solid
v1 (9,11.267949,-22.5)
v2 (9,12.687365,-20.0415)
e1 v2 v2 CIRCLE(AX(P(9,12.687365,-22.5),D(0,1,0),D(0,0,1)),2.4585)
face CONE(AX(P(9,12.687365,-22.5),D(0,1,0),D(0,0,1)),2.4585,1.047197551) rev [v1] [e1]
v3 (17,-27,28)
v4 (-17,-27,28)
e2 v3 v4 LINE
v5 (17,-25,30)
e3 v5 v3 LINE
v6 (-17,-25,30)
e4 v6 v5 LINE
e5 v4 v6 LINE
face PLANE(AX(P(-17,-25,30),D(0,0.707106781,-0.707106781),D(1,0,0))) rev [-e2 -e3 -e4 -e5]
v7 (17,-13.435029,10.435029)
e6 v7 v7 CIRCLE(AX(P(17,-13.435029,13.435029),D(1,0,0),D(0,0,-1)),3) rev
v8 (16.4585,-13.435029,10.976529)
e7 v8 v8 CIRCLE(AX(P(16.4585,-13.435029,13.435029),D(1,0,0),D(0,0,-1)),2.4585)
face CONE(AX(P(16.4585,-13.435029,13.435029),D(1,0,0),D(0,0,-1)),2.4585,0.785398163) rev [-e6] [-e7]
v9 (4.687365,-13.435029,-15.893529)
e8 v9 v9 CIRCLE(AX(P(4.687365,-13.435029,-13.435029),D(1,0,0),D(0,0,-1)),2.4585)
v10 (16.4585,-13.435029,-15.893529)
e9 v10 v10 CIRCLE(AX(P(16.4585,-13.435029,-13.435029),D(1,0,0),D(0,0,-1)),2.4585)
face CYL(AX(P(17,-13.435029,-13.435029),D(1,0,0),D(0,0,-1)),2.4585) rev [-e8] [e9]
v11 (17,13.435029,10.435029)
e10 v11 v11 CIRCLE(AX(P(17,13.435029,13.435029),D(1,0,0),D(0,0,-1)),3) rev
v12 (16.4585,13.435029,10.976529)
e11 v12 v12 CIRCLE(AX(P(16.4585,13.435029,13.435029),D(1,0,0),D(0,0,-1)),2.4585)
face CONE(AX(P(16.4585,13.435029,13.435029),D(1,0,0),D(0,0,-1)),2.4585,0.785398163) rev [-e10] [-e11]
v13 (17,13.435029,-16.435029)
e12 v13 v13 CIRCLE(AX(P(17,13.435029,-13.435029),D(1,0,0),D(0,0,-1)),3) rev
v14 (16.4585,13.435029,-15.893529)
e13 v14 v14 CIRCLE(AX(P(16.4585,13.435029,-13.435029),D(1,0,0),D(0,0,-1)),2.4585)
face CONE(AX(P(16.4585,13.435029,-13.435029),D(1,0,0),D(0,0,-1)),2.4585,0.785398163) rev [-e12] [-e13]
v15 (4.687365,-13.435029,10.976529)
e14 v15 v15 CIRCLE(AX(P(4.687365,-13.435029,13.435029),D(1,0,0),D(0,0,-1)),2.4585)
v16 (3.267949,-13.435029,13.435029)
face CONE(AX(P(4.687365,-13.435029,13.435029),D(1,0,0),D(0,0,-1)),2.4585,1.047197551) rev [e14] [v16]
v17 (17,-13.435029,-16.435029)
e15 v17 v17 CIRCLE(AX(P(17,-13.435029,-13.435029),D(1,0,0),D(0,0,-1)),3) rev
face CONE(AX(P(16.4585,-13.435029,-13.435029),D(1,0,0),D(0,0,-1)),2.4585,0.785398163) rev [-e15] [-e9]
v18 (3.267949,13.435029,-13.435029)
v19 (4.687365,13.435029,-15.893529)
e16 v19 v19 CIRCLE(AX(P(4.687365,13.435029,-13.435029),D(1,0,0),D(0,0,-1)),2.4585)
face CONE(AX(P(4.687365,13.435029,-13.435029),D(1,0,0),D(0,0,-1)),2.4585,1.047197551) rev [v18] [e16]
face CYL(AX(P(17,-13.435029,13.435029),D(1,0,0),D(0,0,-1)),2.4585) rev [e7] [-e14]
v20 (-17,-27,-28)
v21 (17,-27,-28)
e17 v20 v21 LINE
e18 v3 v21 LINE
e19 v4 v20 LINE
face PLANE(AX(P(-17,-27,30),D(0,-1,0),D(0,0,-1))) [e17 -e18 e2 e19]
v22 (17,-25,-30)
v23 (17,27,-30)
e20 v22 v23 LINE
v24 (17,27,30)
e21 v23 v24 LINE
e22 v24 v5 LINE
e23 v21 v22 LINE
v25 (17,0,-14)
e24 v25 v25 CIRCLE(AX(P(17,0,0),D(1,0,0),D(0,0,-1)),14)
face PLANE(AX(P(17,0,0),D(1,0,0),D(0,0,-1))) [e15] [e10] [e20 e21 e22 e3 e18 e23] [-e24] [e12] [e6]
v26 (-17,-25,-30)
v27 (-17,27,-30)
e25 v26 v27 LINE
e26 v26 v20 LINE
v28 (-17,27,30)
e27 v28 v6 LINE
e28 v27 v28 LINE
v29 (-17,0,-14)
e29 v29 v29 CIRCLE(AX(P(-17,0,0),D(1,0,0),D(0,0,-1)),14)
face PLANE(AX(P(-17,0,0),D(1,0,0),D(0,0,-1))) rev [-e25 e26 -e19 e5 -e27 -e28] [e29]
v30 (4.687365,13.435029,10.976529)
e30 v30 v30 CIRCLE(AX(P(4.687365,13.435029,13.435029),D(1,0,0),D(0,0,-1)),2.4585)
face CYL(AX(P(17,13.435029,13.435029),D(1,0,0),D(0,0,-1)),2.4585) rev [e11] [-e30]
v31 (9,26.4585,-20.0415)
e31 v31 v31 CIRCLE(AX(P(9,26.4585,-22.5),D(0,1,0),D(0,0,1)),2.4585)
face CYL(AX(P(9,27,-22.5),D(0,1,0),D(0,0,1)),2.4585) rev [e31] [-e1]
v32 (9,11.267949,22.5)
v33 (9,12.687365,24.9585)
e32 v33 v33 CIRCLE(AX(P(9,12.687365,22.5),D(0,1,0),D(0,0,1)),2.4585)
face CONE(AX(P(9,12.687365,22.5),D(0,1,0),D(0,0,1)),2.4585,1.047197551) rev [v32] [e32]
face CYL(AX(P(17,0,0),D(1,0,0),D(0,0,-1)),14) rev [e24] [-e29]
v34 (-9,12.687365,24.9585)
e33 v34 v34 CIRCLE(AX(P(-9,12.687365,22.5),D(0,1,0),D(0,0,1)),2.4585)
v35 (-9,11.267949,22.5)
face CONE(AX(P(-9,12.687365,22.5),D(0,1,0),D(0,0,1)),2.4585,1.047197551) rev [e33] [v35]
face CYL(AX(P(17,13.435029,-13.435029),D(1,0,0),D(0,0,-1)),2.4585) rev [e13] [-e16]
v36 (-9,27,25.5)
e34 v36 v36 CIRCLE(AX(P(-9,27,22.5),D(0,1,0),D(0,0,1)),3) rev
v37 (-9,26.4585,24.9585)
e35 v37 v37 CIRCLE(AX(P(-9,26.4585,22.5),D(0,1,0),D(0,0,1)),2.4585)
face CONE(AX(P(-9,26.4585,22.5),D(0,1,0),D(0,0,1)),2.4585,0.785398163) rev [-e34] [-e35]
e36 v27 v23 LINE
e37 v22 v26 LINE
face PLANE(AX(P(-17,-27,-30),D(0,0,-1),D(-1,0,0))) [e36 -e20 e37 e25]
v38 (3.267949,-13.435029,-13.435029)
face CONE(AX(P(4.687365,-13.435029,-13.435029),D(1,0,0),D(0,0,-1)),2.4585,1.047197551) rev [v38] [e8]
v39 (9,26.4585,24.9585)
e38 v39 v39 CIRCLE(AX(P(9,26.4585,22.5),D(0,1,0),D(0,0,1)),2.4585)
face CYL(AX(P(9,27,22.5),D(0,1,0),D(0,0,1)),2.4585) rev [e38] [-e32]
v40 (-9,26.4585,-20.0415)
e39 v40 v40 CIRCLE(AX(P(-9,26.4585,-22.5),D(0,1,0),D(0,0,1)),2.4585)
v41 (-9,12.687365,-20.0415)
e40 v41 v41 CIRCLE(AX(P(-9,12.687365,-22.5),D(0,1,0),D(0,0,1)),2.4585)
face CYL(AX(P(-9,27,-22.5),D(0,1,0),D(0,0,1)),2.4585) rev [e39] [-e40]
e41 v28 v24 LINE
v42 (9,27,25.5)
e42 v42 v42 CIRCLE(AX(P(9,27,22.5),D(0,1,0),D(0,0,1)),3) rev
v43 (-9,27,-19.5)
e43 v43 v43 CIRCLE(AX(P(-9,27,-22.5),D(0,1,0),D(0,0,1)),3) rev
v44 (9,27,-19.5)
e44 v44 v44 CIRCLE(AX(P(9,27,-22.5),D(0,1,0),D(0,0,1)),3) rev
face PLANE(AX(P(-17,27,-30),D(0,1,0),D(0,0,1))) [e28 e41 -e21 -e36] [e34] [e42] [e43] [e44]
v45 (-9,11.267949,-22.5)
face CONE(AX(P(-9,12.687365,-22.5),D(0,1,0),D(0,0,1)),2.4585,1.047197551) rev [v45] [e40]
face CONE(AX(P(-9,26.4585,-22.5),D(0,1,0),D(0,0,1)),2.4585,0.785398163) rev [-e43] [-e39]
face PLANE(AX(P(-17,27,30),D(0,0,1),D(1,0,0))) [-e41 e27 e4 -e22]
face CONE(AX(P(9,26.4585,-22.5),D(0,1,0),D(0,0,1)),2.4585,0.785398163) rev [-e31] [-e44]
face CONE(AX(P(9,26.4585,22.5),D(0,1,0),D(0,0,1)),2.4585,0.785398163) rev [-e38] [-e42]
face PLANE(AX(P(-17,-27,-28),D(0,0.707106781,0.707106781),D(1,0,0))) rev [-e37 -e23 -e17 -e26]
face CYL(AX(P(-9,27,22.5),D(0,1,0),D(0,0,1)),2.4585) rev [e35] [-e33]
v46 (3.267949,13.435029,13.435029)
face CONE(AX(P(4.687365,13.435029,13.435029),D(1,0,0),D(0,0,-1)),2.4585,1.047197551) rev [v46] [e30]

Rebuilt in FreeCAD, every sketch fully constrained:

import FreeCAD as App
import Part
import Sketcher
from FreeCAD import Vector


def edges_at(feature, points):
    """Names of the edges that pass closest to the given points."""
    edges = feature.Shape.Edges
    near = lambda p: min(range(len(edges)), key=lambda i: edges[i].distToShape(Part.Vertex(*p))[0])
    return sorted({f"Edge{near(p) + 1}" for p in points})


def add_polygon(sketch, points):
    """Adds a closed chain of lines whose ends are joined by coincident constraints."""
    first, n = sketch.GeometryCount, len(points)
    for a, b in zip(points, points[1:] + points[:1]):
        sketch.addGeometry(Part.LineSegment(App.Vector(*a, 0), App.Vector(*b, 0)), False)
    for i in range(n):
        sketch.addConstraint(Sketcher.Constraint("Coincident", first + i, 2, first + (i + 1) % n, 1))

doc = App.newDocument("Part")
params = doc.addObject("Spreadsheet::Sheet", "Params")
for row, (alias, value) in enumerate([
    ("sketch1_width", "54 mm"),
    ("sketch1_height", "60 mm"),
    ("pad1_length", "34 mm"),
    ("sketch2_diameter", "28 mm"),
    ("hole_diameter", "28 mm"),
    ("hole2_diameter", "4.917 mm"),
    ("hole2_depth", "14.312635 mm"),
    ("hole3_diameter", "4.917 mm"),
    ("hole3_depth", "12.312635 mm"),
    ("chamfer_size", "0.5415 mm"),
    ("chamfer2_size", "2 mm"),
], start=1):
    params.set(f"A{row}", alias)
    params.set(f"B{row}", "=" + value)
    params.setAlias(f"B{row}", alias)

body = doc.addObject("PartDesign::Body", "Body")

sketch1 = doc.addObject("Sketcher::SketchObject", "Sketch")
body.addObject(sketch1)
sketch1.AttachmentSupport = (doc.YZ_Plane, [""])
sketch1.MapMode = "FlatFace"
sketch1.AttachmentOffset = App.Placement(Vector(0, 0, 17), App.Rotation())
add_polygon(sketch1, [(27, 30), (-27, 30), (-27, -30), (27, -30)])
sketch1.addConstraint(Sketcher.Constraint("Horizontal", 0))
sketch1.addConstraint(Sketcher.Constraint("Vertical", 1))
sketch1.addConstraint(Sketcher.Constraint("Horizontal", 2))
sketch1.addConstraint(Sketcher.Constraint("Vertical", 3))
sketch1.addConstraint(Sketcher.Constraint("Symmetric", 0, 2, 2, 2, -1, 1))
sketch1.addConstraint(Sketcher.Constraint("DistanceX", 0, 2, 0, 1, 54.0))
sketch1.addConstraint(Sketcher.Constraint("DistanceY", 1, 2, 1, 1, 60.0))
sketch1.setExpression("Constraints[9]", "Params.sketch1_width")
sketch1.setExpression("Constraints[10]", "Params.sketch1_height")
pad1 = doc.addObject("PartDesign::Pad", "Pad")
body.addObject(pad1)
pad1.Profile = sketch1
pad1.setExpression("Length", "Params.pad1_length")
pad1.Reversed = True

sketch2 = doc.addObject("Sketcher::SketchObject", "Sketch001")
body.addObject(sketch2)
sketch2.AttachmentSupport = (doc.YZ_Plane, [""])
sketch2.MapMode = "FlatFace"
sketch2.AttachmentOffset = App.Placement(Vector(0, 0, 17), App.Rotation())
sketch2.addGeometry(Part.Circle(Vector(0, 0, 0), Vector(0, 0, 1), 14), False)
sketch2.addConstraint(Sketcher.Constraint("Coincident", 0, 3, -1, 1))
sketch2.addConstraint(Sketcher.Constraint("Diameter", 0, 28.0))
sketch2.setExpression("Constraints[1]", "Params.sketch2_diameter")
doc.recompute()
hole = doc.addObject("PartDesign::Hole", "Hole")
body.addObject(hole)
hole.Profile = sketch2
hole.ThreadType = "None"
hole.setExpression("Diameter", "Params.hole_diameter")
hole.DepthType = "ThroughAll"

sketch3 = doc.addObject("Sketcher::SketchObject", "Sketch002")
body.addObject(sketch3)
sketch3.AttachmentSupport = (doc.XZ_Plane, [""])
sketch3.MapMode = "FlatFace"
sketch3.AttachmentOffset = App.Placement(Vector(0, 0, -27), App.Rotation())
sketch3.addGeometry(Part.Circle(Vector(9, -22.5, 0), Vector(0, 0, 1), 2.5), False)
sketch3.addGeometry(Part.Circle(Vector(9, 22.5, 0), Vector(0, 0, 1), 2.5), False)
sketch3.addGeometry(Part.Circle(Vector(-9, -22.5, 0), Vector(0, 0, 1), 2.5), False)
sketch3.addGeometry(Part.Circle(Vector(-9, 22.5, 0), Vector(0, 0, 1), 2.5), False)
sketch3.addConstraint(Sketcher.Constraint("Equal", 0, 1))
sketch3.addConstraint(Sketcher.Constraint("Equal", 1, 2))
sketch3.addConstraint(Sketcher.Constraint("Equal", 2, 3))
sketch3.addConstraint(Sketcher.Constraint("Symmetric", 1, 3, 2, 3, -1, 1))
sketch3.addConstraint(Sketcher.Constraint("Symmetric", 0, 3, 3, 3, -1, 1))
sketch3.addConstraint(Sketcher.Constraint("Symmetric", 0, 3, 2, 3, -2))
sketch3.addConstraint(Sketcher.Constraint("Diameter", 0, 4.917))
sketch3.addConstraint(Sketcher.Constraint("DistanceX", -1, 1, 0, 3, 9.0))
sketch3.addConstraint(Sketcher.Constraint("DistanceY", 0, 3, 1, 3, 45.0))
doc.recompute()
hole2 = doc.addObject("PartDesign::Hole", "Hole001")
body.addObject(hole2)
hole2.Profile = sketch3
hole2.ThreadType = "None"
hole2.setExpression("Diameter", "Params.hole2_diameter")
hole2.DepthType = "Dimension"
hole2.setExpression("Depth", "Params.hole2_depth")
hole2.DrillPoint = "Angled"
hole2.DrillPointAngle = 120
hole2.Reversed = True

sketch4 = doc.addObject("Sketcher::SketchObject", "Sketch003")
body.addObject(sketch4)
sketch4.AttachmentSupport = (doc.YZ_Plane, [""])
sketch4.MapMode = "FlatFace"
sketch4.AttachmentOffset = App.Placement(Vector(0, 0, 17), App.Rotation())
sketch4.addGeometry(Part.Circle(Vector(13.4, -13.4, 0), Vector(0, 0, 1), 2.5), False)
sketch4.addGeometry(Part.Circle(Vector(-13.4, 13.4, 0), Vector(0, 0, 1), 2.5), False)
sketch4.addGeometry(Part.Circle(Vector(-13.4, -13.4, 0), Vector(0, 0, 1), 2.5), False)
sketch4.addGeometry(Part.Circle(Vector(13.4, 13.4, 0), Vector(0, 0, 1), 2.5), False)
sketch4.addConstraint(Sketcher.Constraint("Equal", 0, 1))
sketch4.addConstraint(Sketcher.Constraint("Equal", 1, 2))
sketch4.addConstraint(Sketcher.Constraint("Equal", 2, 3))
sketch4.addConstraint(Sketcher.Constraint("Symmetric", 0, 3, 1, 3, -1, 1))
sketch4.addConstraint(Sketcher.Constraint("Symmetric", 2, 3, 3, 3, -1, 1))
sketch4.addConstraint(Sketcher.Constraint("Symmetric", 0, 3, 2, 3, -2))
sketch4.addConstraint(Sketcher.Constraint("Diameter", 0, 4.917))
sketch4.addConstraint(Sketcher.Constraint("DistanceX", -1, 1, 0, 3, 13.435029))
sketch4.addConstraint(Sketcher.Constraint("DistanceY", 0, 3, -1, 1, 13.435029))
doc.recompute()
hole3 = doc.addObject("PartDesign::Hole", "Hole002")
body.addObject(hole3)
hole3.Profile = sketch4
hole3.ThreadType = "None"
hole3.setExpression("Diameter", "Params.hole3_diameter")
hole3.DepthType = "Dimension"
hole3.setExpression("Depth", "Params.hole3_depth")
hole3.DrillPoint = "Angled"
hole3.DrillPointAngle = 120
doc.recompute()

chamfer = doc.addObject("PartDesign::Chamfer", "Chamfer")
body.addObject(chamfer)
chamfer.Base = (hole3, edges_at(hole3, [
    (-6.542, 27, 22.5),
    (-6.542, 27, -22.5),
    (11.459, 27, 22.5),
    (11.459, 27, -22.5),
    (17, 13.435, 10.977),
    (17, -13.435, -15.894),
    (17, -13.435, 10.977),
    (17, 13.435, -15.894),
]))
chamfer.setExpression("Size", "Params.chamfer_size")
doc.recompute()

chamfer2 = doc.addObject("PartDesign::Chamfer", "Chamfer001")
body.addObject(chamfer2)
chamfer2.Base = (chamfer, edges_at(chamfer, [(0, -27, 30), (0, -27, -30)]))
chamfer2.setExpression("Size", "Params.chamfer2_size")

doc.recompute()
